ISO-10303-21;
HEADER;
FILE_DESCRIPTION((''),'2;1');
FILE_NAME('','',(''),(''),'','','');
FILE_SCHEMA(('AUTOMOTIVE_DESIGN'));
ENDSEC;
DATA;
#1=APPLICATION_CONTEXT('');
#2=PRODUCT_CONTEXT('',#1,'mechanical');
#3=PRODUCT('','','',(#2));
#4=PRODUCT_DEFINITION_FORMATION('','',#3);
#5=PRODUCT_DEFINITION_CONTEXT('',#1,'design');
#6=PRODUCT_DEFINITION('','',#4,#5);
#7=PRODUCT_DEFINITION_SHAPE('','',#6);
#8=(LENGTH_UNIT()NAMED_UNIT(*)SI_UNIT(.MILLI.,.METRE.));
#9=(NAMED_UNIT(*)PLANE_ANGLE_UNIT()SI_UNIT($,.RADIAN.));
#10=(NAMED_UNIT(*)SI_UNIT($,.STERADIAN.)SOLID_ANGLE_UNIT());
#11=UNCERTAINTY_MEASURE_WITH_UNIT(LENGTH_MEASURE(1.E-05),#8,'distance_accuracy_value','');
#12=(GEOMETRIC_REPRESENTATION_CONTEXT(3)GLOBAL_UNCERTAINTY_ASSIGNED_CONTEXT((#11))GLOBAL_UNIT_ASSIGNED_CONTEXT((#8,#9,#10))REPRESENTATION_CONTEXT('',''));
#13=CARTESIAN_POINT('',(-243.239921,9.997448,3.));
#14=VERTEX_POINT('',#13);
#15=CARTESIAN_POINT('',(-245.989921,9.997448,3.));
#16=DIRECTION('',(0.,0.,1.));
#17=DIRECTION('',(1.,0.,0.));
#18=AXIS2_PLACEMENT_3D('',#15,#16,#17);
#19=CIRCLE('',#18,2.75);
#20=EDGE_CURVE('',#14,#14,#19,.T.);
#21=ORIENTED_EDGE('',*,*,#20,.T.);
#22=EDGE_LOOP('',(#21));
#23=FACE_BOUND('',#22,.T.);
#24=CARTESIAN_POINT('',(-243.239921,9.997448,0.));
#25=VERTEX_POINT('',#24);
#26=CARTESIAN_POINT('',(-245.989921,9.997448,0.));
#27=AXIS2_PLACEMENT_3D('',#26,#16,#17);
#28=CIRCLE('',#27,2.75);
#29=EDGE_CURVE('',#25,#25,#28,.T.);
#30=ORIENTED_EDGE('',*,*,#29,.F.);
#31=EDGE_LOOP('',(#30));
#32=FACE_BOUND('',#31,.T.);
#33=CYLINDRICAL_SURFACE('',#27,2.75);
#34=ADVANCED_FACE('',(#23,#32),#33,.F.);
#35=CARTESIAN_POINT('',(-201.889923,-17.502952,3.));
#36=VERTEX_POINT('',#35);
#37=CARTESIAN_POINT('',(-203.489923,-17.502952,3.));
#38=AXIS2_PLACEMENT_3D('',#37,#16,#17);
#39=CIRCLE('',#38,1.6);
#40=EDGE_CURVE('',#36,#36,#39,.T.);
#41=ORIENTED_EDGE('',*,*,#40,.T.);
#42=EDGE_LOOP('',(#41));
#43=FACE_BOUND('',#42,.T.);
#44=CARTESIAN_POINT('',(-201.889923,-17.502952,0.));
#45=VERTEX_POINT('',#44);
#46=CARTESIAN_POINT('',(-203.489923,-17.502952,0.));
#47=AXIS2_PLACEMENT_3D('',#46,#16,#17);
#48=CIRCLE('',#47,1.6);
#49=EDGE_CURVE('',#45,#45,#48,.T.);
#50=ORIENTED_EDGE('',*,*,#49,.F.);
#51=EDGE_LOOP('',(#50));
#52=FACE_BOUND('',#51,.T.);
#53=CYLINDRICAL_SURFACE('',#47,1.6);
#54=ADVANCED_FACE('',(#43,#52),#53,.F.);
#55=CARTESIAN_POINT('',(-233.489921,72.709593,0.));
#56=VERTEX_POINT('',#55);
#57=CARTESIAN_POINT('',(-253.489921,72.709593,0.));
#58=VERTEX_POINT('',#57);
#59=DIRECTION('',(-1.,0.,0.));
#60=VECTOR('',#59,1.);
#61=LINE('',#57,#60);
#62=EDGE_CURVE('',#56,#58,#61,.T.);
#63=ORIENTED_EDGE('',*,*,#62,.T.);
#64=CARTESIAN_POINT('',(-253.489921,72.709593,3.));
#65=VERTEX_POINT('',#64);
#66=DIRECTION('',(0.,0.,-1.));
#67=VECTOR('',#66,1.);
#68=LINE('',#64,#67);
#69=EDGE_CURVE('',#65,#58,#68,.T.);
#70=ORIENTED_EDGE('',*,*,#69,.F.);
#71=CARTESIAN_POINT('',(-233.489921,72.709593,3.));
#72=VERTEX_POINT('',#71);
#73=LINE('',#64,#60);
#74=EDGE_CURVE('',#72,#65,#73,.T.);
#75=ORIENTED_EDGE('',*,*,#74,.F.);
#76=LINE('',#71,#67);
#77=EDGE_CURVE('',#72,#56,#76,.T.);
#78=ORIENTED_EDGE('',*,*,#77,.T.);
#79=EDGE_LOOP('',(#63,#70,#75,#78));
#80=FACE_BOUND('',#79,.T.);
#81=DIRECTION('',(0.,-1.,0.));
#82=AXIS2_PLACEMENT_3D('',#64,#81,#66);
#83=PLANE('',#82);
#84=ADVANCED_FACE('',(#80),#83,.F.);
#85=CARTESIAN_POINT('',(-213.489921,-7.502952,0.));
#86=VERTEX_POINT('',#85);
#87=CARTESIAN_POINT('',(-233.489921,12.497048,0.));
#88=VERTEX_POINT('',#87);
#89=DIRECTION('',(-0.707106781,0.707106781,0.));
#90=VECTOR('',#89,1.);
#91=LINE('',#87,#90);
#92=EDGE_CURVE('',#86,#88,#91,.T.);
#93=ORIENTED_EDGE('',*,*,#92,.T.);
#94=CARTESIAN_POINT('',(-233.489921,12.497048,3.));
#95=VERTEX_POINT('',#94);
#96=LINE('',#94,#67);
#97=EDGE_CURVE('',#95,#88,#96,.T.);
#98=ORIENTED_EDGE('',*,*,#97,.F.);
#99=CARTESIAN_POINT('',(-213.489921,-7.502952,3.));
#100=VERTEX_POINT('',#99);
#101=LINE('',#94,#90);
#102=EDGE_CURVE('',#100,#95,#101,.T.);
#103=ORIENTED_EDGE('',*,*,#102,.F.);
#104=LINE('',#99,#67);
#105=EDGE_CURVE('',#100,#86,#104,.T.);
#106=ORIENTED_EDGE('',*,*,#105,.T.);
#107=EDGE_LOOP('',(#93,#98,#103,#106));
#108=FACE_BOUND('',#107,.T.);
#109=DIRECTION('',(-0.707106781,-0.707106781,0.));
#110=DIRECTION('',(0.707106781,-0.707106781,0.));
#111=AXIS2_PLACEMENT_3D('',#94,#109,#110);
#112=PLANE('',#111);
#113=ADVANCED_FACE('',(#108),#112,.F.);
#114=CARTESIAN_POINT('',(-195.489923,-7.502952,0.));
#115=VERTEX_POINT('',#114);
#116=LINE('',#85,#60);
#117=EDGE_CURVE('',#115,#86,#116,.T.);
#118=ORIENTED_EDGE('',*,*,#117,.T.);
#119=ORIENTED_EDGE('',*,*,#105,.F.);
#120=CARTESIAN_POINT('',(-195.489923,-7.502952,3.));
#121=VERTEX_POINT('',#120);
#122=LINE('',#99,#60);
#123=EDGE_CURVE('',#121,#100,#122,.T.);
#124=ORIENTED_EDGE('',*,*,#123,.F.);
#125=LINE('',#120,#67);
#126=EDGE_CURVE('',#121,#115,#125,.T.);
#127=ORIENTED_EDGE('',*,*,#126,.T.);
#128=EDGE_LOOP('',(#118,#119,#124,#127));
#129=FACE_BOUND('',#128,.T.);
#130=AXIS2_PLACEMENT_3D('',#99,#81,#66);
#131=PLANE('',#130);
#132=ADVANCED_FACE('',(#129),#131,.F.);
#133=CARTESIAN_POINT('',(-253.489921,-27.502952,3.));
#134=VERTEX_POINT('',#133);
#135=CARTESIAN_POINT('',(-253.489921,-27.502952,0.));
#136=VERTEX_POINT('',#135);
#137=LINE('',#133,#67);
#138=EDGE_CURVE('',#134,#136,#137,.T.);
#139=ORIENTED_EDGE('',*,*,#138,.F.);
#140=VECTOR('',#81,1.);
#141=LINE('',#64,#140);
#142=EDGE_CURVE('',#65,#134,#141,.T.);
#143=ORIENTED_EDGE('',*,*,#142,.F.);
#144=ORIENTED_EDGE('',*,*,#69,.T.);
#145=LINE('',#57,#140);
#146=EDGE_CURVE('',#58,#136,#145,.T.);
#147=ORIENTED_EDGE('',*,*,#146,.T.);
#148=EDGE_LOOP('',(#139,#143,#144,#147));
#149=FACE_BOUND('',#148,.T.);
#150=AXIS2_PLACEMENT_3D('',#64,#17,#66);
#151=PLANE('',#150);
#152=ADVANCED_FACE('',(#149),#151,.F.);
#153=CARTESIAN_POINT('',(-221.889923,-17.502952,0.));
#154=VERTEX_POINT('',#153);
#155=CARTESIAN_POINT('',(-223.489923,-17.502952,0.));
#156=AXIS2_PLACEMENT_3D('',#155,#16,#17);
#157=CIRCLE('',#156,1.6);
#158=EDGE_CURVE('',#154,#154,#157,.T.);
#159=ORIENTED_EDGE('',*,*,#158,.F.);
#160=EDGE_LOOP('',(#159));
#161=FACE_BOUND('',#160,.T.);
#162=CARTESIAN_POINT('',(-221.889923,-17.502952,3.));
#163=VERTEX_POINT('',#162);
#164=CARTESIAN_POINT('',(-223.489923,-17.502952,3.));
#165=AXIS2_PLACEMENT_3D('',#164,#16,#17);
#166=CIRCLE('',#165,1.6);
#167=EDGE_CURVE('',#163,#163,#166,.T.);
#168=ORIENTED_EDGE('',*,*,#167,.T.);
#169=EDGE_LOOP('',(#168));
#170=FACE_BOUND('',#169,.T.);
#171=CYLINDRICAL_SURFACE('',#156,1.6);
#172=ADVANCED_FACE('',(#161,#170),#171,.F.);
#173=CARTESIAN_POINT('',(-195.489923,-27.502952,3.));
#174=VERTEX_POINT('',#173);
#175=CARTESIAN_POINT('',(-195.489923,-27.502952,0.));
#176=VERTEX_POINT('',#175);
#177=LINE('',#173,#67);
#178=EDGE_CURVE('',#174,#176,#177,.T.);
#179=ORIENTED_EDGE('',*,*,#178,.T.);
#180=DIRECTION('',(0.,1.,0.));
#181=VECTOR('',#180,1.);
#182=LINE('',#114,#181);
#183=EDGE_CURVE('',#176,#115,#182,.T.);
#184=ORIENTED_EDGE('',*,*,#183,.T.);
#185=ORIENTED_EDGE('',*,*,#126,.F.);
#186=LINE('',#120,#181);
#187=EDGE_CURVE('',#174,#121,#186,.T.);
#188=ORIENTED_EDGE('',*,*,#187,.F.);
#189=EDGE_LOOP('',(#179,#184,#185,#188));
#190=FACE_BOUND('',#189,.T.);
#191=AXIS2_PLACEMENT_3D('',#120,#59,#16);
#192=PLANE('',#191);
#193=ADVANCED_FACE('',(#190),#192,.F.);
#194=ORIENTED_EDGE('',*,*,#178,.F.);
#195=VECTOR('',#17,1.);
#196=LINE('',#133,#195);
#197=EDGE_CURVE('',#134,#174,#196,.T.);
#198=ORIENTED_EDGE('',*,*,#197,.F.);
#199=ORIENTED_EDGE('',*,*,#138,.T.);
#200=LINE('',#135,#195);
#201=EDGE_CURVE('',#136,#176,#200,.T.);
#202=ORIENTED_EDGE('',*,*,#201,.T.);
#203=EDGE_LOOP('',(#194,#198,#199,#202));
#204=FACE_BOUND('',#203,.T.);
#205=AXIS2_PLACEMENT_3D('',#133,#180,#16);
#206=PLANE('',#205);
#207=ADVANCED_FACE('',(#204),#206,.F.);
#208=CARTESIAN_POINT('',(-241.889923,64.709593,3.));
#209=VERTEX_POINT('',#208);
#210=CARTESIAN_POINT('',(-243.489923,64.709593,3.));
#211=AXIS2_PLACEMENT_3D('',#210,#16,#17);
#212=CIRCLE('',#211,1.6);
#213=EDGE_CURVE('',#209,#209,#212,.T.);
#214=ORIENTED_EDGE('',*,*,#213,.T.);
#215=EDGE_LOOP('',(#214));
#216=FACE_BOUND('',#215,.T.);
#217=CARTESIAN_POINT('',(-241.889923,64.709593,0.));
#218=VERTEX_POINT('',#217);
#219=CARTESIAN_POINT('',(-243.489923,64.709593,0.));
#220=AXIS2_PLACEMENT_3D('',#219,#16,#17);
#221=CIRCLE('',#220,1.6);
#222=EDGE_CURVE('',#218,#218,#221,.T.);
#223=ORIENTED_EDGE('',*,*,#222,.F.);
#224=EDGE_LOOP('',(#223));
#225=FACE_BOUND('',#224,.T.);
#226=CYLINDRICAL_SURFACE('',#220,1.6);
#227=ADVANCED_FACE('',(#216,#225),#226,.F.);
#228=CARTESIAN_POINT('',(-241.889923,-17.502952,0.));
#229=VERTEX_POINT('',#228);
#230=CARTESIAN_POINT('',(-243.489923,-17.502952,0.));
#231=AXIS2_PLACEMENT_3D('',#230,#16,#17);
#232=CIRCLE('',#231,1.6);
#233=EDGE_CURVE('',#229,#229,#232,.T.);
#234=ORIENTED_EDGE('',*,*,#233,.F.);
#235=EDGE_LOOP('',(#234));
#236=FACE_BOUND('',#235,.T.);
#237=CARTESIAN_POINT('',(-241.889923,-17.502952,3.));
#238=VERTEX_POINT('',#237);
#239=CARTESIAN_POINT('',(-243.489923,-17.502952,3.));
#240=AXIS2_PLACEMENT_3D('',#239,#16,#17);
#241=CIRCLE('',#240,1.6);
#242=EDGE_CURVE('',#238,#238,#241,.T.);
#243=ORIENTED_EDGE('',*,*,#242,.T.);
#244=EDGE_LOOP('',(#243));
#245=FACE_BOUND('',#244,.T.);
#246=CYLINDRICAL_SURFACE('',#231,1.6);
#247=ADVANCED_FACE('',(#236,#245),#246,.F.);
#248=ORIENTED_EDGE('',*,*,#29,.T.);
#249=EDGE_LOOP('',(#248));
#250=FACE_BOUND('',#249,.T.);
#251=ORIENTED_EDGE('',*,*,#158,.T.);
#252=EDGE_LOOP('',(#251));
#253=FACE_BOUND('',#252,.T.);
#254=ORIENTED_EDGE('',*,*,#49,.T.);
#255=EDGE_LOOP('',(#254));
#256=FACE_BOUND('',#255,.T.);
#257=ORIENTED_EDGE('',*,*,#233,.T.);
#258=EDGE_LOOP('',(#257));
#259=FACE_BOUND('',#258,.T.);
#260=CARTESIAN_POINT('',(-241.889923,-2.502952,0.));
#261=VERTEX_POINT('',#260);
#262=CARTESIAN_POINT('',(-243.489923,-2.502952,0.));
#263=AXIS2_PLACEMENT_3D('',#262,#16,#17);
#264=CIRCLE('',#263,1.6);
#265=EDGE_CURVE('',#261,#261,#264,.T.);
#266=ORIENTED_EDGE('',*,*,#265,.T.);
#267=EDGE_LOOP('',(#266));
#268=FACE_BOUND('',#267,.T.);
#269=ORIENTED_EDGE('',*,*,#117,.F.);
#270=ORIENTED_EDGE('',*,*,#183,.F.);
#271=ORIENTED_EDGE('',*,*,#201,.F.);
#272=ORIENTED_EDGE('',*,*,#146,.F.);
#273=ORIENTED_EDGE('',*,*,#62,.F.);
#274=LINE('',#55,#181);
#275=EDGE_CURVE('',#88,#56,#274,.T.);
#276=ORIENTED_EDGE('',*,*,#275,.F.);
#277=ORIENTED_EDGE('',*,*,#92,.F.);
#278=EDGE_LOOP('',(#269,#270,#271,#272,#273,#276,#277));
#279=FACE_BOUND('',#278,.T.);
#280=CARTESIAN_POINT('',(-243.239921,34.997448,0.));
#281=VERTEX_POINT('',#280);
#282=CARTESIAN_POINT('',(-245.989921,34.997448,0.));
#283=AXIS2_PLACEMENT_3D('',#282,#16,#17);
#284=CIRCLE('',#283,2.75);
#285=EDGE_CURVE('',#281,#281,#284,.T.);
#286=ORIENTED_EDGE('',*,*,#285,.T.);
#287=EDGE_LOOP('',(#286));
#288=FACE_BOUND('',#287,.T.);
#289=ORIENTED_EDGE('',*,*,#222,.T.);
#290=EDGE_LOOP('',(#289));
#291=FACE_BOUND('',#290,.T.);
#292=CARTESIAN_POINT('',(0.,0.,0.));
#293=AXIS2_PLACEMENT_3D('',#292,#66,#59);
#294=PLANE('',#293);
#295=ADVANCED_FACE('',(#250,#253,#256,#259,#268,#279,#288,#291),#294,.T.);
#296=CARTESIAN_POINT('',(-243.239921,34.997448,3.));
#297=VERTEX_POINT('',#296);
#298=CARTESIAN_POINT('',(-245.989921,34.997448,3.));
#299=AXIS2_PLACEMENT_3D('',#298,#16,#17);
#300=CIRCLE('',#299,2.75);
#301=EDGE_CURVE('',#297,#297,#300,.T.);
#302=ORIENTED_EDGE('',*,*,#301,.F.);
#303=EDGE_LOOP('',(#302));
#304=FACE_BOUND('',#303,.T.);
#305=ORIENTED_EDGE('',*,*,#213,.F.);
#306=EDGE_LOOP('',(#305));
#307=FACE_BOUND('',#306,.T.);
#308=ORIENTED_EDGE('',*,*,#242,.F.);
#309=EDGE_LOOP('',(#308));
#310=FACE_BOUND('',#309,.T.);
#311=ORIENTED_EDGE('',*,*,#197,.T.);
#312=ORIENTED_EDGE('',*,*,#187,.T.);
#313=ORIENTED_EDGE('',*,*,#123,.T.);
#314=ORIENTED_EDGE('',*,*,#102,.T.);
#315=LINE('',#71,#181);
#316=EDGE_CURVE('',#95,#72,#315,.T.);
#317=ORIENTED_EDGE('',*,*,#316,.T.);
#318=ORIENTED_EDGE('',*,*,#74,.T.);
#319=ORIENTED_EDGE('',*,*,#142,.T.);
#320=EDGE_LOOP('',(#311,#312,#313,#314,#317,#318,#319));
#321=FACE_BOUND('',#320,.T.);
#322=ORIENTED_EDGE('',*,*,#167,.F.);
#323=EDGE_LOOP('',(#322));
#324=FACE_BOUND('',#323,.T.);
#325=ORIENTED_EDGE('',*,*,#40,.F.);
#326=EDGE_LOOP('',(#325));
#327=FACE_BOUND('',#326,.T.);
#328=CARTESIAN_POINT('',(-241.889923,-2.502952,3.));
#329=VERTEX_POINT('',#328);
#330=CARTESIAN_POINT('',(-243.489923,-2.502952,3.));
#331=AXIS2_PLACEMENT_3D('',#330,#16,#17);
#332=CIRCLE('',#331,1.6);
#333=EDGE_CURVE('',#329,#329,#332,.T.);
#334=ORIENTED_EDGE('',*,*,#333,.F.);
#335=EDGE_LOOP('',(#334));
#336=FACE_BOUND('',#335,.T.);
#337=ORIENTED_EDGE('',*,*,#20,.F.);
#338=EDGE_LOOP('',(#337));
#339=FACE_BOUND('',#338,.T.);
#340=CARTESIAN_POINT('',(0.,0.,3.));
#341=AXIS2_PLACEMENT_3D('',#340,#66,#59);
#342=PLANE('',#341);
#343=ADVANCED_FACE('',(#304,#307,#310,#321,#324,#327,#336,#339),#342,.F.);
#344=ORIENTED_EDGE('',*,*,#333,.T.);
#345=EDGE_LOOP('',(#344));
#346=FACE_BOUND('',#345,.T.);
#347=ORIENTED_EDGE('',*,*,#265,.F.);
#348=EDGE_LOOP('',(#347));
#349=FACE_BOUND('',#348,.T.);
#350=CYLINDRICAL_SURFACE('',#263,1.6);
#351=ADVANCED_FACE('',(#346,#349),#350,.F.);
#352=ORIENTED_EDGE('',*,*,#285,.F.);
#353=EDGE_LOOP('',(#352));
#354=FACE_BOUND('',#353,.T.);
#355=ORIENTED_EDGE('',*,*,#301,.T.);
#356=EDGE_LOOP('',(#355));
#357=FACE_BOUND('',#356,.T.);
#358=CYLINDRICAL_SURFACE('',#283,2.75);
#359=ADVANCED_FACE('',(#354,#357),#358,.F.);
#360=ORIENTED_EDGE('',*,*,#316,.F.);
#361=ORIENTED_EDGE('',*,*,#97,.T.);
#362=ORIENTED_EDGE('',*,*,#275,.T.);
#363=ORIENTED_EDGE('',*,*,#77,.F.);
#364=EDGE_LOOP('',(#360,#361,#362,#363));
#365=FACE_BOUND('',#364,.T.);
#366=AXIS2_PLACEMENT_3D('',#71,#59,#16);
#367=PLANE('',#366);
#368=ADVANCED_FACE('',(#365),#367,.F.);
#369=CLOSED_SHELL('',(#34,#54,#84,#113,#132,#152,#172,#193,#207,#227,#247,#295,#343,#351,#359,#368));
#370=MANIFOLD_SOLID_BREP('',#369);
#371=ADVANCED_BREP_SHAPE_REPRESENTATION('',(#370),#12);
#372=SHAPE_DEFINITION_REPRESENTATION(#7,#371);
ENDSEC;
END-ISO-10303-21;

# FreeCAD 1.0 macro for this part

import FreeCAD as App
import Part
import Sketcher

V = App.Vector
Q = App.Units.Quantity


def add_polygon(sketch, points):
    """Adds a closed chain of lines whose ends are joined by coincident constraints."""
    first, n = sketch.GeometryCount, len(points)
    for a, b in zip(points, points[1:] + points[:1]):
        sketch.addGeometry(Part.LineSegment(App.Vector(*a, 0), App.Vector(*b, 0)), False)
    for i in range(n):
        sketch.addConstraint(Sketcher.Constraint("Coincident", first + i, 2, first + (i + 1) % n, 1))

doc = App.newDocument("Part")
body = doc.addObject("PartDesign::Body", "Body")

sketch1 = body.newObject("Sketcher::SketchObject", "Sketch")
sketch1.AttachmentSupport = (doc.getObject("XY_Plane"), [""])
sketch1.MapMode = "FlatFace"
add_polygon(sketch1, [(-195, -28), (-195, -8), (-213, -8), (-233, 12), (-233, 73), (-253, 73), (-253, -28)])
sketch1.addConstraint(Sketcher.Constraint("Vertical", 0))
sketch1.addConstraint(Sketcher.Constraint("Horizontal", 1))
sketch1.addConstraint(Sketcher.Constraint("Vertical", 3))
sketch1.addConstraint(Sketcher.Constraint("Horizontal", 4))
sketch1.addConstraint(Sketcher.Constraint("Vertical", 5))
sketch1.addConstraint(Sketcher.Constraint("Horizontal", 6))
sketch1.addConstraint(Sketcher.Constraint("Equal", 4, 0))
sketch1.addConstraint(Sketcher.Constraint("DistanceX", 1, 2, 1, 1, Q("17.999998 mm")))
sketch1.addConstraint(Sketcher.Constraint("DistanceX", 4, 2, 4, 1, Q("20 mm")))
sketch1.addConstraint(Sketcher.Constraint("DistanceX", 6, 1, 6, 2, Q("57.999998 mm")))
sketch1.addConstraint(Sketcher.Constraint("Angle", 2, Q("135 deg")))
sketch1.addConstraint(Sketcher.Constraint("DistanceY", 3, 1, 3, 2, Q("60.212545 mm")))
sketch1.addConstraint(Sketcher.Constraint("DistanceY", 0, 2, -1, 1, Q("7.502952 mm")))
sketch1.addConstraint(Sketcher.Constraint("DistanceX", 1, 2, -1, 1, Q("213.489921 mm")))
pad1 = body.newObject("PartDesign::Pad", "Pad")
pad1.Profile = sketch1
pad1.Length = 3

sketch2 = body.newObject("Sketcher::SketchObject", "Sketch001")
sketch2.AttachmentSupport = (doc.getObject("XY_Plane"), [""])
sketch2.MapMode = "FlatFace"
sketch2.AttachmentOffset = App.Placement(V(0, 0, 3), App.Rotation())
sketch2.addGeometry(Part.Circle(V(-203.5, -17.5, 0), V(0, 0, 1), 1.6), False)
sketch2.addGeometry(Part.Circle(V(-223.5, -17.5, 0), V(0, 0, 1), 1.6), False)
sketch2.addGeometry(Part.Circle(V(-243.5, -17.5, 0), V(0, 0, 1), 1.6), False)
sketch2.addGeometry(Part.Circle(V(-243.5, -2.5, 0), V(0, 0, 1), 1.6), False)
sketch2.addGeometry(Part.Circle(V(-246, 10, 0), V(0, 0, 1), 2.8), False)
sketch2.addGeometry(Part.Circle(V(-246, 35, 0), V(0, 0, 1), 2.8), False)
sketch2.addGeometry(Part.Circle(V(-243.5, 64.7, 0), V(0, 0, 1), 1.6), False)
sketch2.addConstraint(Sketcher.Constraint("Equal", 0, 1))
sketch2.addConstraint(Sketcher.Constraint("Equal", 1, 2))
sketch2.addConstraint(Sketcher.Constraint("Equal", 2, 3))
sketch2.addConstraint(Sketcher.Constraint("Equal", 4, 5))
sketch2.addConstraint(Sketcher.Constraint("Equal", 3, 6))
sketch2.addConstraint(Sketcher.Constraint("Horizontal", 0, 3, 1, 3))
sketch2.addConstraint(Sketcher.Constraint("Horizontal", 1, 3, 2, 3))
sketch2.addConstraint(Sketcher.Constraint("Vertical", 2, 3, 3, 3))
sketch2.addConstraint(Sketcher.Constraint("Vertical", 4, 3, 5, 3))
sketch2.addConstraint(Sketcher.Constraint("Vertical", 3, 3, 6, 3))
sketch2.addConstraint(Sketcher.Constraint("Diameter", 0, Q("3.2 mm")))
sketch2.addConstraint(Sketcher.Constraint("Diameter", 4, Q("5.5 mm")))
sketch2.addConstraint(Sketcher.Constraint("DistanceX", 1, 3, 0, 3, Q("20 mm")))
sketch2.addConstraint(Sketcher.Constraint("DistanceX", 2, 3, 1, 3, Q("20 mm")))
sketch2.addConstraint(Sketcher.Constraint("DistanceY", 2, 3, 3, 3, Q("15 mm")))
sketch2.addConstraint(Sketcher.Constraint("DistanceY", 4, 3, 5, 3, Q("25 mm")))
sketch2.addConstraint(Sketcher.Constraint("DistanceX", 4, 3, 3, 3, Q("2.499998 mm")))
sketch2.addConstraint(Sketcher.Constraint("DistanceY", 3, 3, 4, 3, Q("12.5004 mm")))
sketch2.addConstraint(Sketcher.Constraint("DistanceY", 0, 3, -1, 1, Q("17.502952 mm")))
sketch2.addConstraint(Sketcher.Constraint("DistanceX", 4, 3, -1, 1, Q("245.989921 mm")))
sketch2.addConstraint(Sketcher.Constraint("DistanceY", -1, 1, 6, 3, Q("64.709593 mm")))
pocket1 = body.newObject("PartDesign::Pocket", "Pocket")
pocket1.Profile = sketch2
pocket1.Length = 3

doc.recompute()
